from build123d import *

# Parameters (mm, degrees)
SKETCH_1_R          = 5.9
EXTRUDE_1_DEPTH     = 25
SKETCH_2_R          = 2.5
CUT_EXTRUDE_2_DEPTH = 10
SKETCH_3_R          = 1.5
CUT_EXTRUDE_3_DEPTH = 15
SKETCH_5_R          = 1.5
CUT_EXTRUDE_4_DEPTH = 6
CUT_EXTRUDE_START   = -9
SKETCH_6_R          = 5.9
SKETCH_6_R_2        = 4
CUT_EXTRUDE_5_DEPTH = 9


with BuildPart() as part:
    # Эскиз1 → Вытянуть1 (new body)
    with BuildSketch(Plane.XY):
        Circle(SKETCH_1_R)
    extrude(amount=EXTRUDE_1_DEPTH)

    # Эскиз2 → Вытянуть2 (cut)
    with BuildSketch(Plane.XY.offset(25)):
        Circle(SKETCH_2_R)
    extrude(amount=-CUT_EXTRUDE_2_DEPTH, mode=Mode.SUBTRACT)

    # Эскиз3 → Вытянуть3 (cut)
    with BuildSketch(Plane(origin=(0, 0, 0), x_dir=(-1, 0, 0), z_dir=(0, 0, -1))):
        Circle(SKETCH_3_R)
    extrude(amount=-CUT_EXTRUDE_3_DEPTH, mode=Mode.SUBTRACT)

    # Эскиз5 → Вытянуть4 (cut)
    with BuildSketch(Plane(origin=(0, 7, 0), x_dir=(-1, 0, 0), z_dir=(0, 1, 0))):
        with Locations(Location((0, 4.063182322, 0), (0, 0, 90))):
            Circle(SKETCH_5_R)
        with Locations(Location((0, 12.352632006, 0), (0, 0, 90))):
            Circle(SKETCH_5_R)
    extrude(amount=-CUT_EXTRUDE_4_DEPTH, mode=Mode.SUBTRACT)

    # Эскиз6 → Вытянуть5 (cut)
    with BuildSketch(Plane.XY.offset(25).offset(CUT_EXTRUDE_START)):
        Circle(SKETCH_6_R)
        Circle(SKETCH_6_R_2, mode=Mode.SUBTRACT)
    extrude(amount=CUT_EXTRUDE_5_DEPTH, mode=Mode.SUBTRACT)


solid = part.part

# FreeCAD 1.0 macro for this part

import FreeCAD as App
import Part
import Sketcher

doc = App.newDocument("Part")
body = doc.addObject("PartDesign::Body", "Body")

sketch1 = doc.addObject("Sketcher::SketchObject", "Sketch")
body.addObject(sketch1)
sketch1.AttachmentSupport = (doc.XY_Plane, [""])
sketch1.MapMode = "FlatFace"
sketch1.addGeometry(Part.Circle(App.Vector(0, 0, 0), App.Vector(0, 0, 1), 6), False)
sketch1.addConstraint([
    Sketcher.Constraint("Coincident", 0, 3, -1, 1),
    Sketcher.Constraint("Diameter", 0, 11.8),
])
pad1 = doc.addObject("PartDesign::Pad", "Pad")
body.addObject(pad1)
pad1.Profile = sketch1
pad1.Length = 25

sketch2 = doc.addObject("Sketcher::SketchObject", "Sketch001")
body.addObject(sketch2)
sketch2.AttachmentSupport = (doc.XY_Plane, [""])
sketch2.MapMode = "FlatFace"
sketch2.AttachmentOffset = App.Placement(App.Vector(0, 0, 25), App.Rotation())
sketch2.addGeometry(Part.Circle(App.Vector(0, 0, 0), App.Vector(0, 0, 1), 2.5), False)
sketch2.addConstraint([
    Sketcher.Constraint("Coincident", 0, 3, -1, 1),
    Sketcher.Constraint("Diameter", 0, 5.0),
])
pocket1 = doc.addObject("PartDesign::Pocket", "Pocket")
body.addObject(pocket1)
pocket1.Profile = sketch2
pocket1.Length = 10

sketch3 = doc.addObject("Sketcher::SketchObject", "Sketch002")
body.addObject(sketch3)
sketch3.AttachmentSupport = (doc.XY_Plane, [""])
sketch3.MapMode = "FlatFace"
sketch3.addGeometry(Part.Circle(App.Vector(0, 0, 0), App.Vector(0, 0, 1), 1.5), False)
sketch3.addConstraint([
    Sketcher.Constraint("Coincident", 0, 3, -1, 1),
    Sketcher.Constraint("Diameter", 0, 3.0),
])
pocket2 = doc.addObject("PartDesign::Pocket", "Pocket001")
body.addObject(pocket2)
pocket2.Profile = sketch3
pocket2.Length = 15
pocket2.Reversed = True

sketch4 = doc.addObject("Sketcher::SketchObject", "Sketch003")
body.addObject(sketch4)
sketch4.AttachmentSupport = (doc.XZ_Plane, [""])
sketch4.MapMode = "FlatFace"
sketch4.AttachmentOffset = App.Placement(App.Vector(0, 0, -7), App.Rotation())
sketch4.addGeometry([
    Part.Circle(App.Vector(0, 4.1, 0), App.Vector(0, 0, 1), 1.5),
    Part.Circle(App.Vector(0, 12.4, 0), App.Vector(0, 0, 1), 1.5),
], False)
sketch4.addConstraint([
    Sketcher.Constraint("Equal", 0, 1),
    Sketcher.Constraint("PointOnObject", 0, 3, -2),
    Sketcher.Constraint("PointOnObject", 1, 3, -2),
    Sketcher.Constraint("Diameter", 0, 3.0),
    Sketcher.Constraint("DistanceY", 0, 3, 1, 3, 8.28945),
    Sketcher.Constraint("DistanceY", -1, 1, 0, 3, 4.063182),
])
pocket3 = doc.addObject("PartDesign::Pocket", "Pocket002")
body.addObject(pocket3)
pocket3.Profile = sketch4
pocket3.Length = 6
pocket3.Reversed = True

sketch5 = doc.addObject("Sketcher::SketchObject", "Sketch004")
body.addObject(sketch5)
sketch5.AttachmentSupport = (doc.XY_Plane, [""])
sketch5.MapMode = "FlatFace"
sketch5.AttachmentOffset = App.Placement(App.Vector(0, 0, 16), App.Rotation())
sketch5.addGeometry([
    Part.Circle(App.Vector(0, 0, 0), App.Vector(0, 0, 1), 5.9),
    Part.Circle(App.Vector(0, 0, 0), App.Vector(0, 0, 1), 4),
], False)
sketch5.addConstraint([
    Sketcher.Constraint("Coincident", 0, 3, -1, 1),
    Sketcher.Constraint("Coincident", 1, 3, -1, 1),
    Sketcher.Constraint("Diameter", 1, 8.0),
    Sketcher.Constraint("Diameter", 0, 11.8),
])
pocket4 = doc.addObject("PartDesign::Pocket", "Pocket003")
body.addObject(pocket4)
pocket4.Profile = sketch5
pocket4.Length = 9
pocket4.Reversed = True

doc.recompute()
